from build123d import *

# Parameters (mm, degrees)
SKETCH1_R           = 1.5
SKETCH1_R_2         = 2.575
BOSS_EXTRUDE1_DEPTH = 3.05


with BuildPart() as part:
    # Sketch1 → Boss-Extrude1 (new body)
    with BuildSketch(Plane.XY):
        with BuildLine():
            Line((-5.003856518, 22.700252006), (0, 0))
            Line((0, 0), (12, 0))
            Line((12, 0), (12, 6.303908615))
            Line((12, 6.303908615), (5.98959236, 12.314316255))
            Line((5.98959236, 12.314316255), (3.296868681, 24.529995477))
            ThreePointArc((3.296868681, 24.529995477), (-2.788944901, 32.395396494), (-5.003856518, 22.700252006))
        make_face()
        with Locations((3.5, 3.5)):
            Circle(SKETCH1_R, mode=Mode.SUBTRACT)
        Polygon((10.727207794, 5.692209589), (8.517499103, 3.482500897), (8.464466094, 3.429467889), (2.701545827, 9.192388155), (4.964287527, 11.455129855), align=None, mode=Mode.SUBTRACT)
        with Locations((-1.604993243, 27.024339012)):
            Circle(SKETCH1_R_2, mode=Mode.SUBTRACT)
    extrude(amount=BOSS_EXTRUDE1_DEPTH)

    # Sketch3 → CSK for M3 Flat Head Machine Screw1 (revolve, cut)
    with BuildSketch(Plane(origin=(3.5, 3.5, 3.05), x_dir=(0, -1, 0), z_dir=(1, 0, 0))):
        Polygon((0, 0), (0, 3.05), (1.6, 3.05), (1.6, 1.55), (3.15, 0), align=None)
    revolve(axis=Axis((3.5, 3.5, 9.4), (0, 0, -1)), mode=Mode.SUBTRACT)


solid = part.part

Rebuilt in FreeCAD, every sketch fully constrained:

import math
import FreeCAD as App
import Part
import Sketcher
Q = App.Units.Quantity

doc = App.newDocument("Part")
body = doc.addObject("PartDesign::Body", "Body")

# Sketch on XY plane
sketch1 = doc.addObject("Sketcher::SketchObject", "Sketch")
body.addObject(sketch1)
sketch1.AttachmentSupport = (doc.XY_Plane, [""])
sketch1.MapMode = "FlatFace"
sketch1.addGeometry(Part.LineSegment(App.Vector(-5, 22.7, 0), App.Vector(0, 0, 0)), False)
sketch1.addGeometry(Part.LineSegment(App.Vector(0, 0, 0), App.Vector(12, 0, 0)), False)
sketch1.addGeometry(Part.LineSegment(App.Vector(12, 0, 0), App.Vector(12, 6.3, 0)), False)
sketch1.addGeometry(Part.LineSegment(App.Vector(12, 6.3, 0), App.Vector(5.99, 12.31, 0)), False)
sketch1.addGeometry(Part.LineSegment(App.Vector(5.99, 12.31, 0), App.Vector(3.3, 24.53, 0)), False)
sketch1.addGeometry(Part.ArcOfCircle(Part.Circle(App.Vector(-1.6, 27.02, 0), App.Vector(0, 0, 1), 5.5), math.radians(-27), math.radians(232)), False)
sketch1.addGeometry(Part.Circle(App.Vector(3.5, 3.5, 0), App.Vector(0, 0, 1), 1.5), False)
sketch1.addGeometry(Part.LineSegment(App.Vector(4.96, 11.46, 0), App.Vector(10.73, 5.69, 0)), False)
sketch1.addGeometry(Part.LineSegment(App.Vector(10.73, 5.69, 0), App.Vector(8.52, 3.48, 0)), False)
sketch1.addGeometry(Part.LineSegment(App.Vector(8.52, 3.48, 0), App.Vector(8.46, 3.43, 0)), False)
sketch1.addGeometry(Part.LineSegment(App.Vector(8.46, 3.43, 0), App.Vector(2.7, 9.19, 0)), False)
sketch1.addGeometry(Part.LineSegment(App.Vector(2.7, 9.19, 0), App.Vector(4.96, 11.46, 0)), False)
sketch1.addGeometry(Part.Circle(App.Vector(-1.6, 27.02, 0), App.Vector(0, 0, 1), 2.58), False)
sketch1.addConstraint(Sketcher.Constraint("Coincident", 0, 2, 1, 1))
sketch1.addConstraint(Sketcher.Constraint("Coincident", 1, 2, 2, 1))
sketch1.addConstraint(Sketcher.Constraint("Coincident", 2, 2, 3, 1))
sketch1.addConstraint(Sketcher.Constraint("Coincident", 3, 2, 4, 1))
sketch1.addConstraint(Sketcher.Constraint("Coincident", 4, 2, 5, 1))
sketch1.addConstraint(Sketcher.Constraint("Coincident", 5, 2, 0, 1))
sketch1.addConstraint(Sketcher.Constraint("Coincident", 7, 2, 8, 1))
sketch1.addConstraint(Sketcher.Constraint("Coincident", 8, 2, 9, 1))
sketch1.addConstraint(Sketcher.Constraint("Coincident", 9, 2, 10, 1))
sketch1.addConstraint(Sketcher.Constraint("Coincident", 10, 2, 11, 1))
sketch1.addConstraint(Sketcher.Constraint("Coincident", 11, 2, 7, 1))
sketch1.addConstraint(Sketcher.Constraint("Horizontal", 1))
sketch1.addConstraint(Sketcher.Constraint("Vertical", 2))
sketch1.addConstraint(Sketcher.Constraint("Coincident", 0, 2, -1, 1))
sketch1.addConstraint(Sketcher.Constraint("Coincident", 12, 3, 5, 3))
sketch1.addConstraint(Sketcher.Constraint("Parallel", 0, 4))
sketch1.addConstraint(Sketcher.Constraint("Parallel", 3, 7))
sketch1.addConstraint(Sketcher.Constraint("Perpendicular", 7, 8))
sketch1.addConstraint(Sketcher.Constraint("Parallel", 8, 9))
sketch1.addConstraint(Sketcher.Constraint("Perpendicular", 9, 10))
sketch1.addConstraint(Sketcher.Constraint("Perpendicular", 10, 11))
sketch1.addConstraint(Sketcher.Constraint("Diameter", 6, 3.0))
sketch1.addConstraint(Sketcher.Constraint("Radius", 5, 5.5))
sketch1.addConstraint(Sketcher.Constraint("Diameter", 12, 5.15))
sketch1.addConstraint(Sketcher.Constraint("DistanceX", 1, 1, 1, 2, 12.0))
sketch1.addConstraint(Sketcher.Constraint("Angle", 3, Q("135 deg")))
sketch1.addConstraint(Sketcher.Constraint("Distance", 3, 8.5))
sketch1.addConstraint(Sketcher.Constraint("Distance", 11, 3.2))
sketch1.addConstraint(Sketcher.Constraint("DistanceX", -1, 1, 6, 3, 3.5))
sketch1.addConstraint(Sketcher.Constraint("DistanceY", -1, 1, 6, 3, 3.5))
sketch1.addConstraint(Sketcher.Constraint("Distance", 7, 8.15))
sketch1.addConstraint(Sketcher.Constraint("Distance", 8, 3.125))
sketch1.addConstraint(Sketcher.Constraint("DistanceY", 2, 1, 2, 2, 6.303909))
sketch1.addConstraint(Sketcher.Constraint("DistanceX", -1, 1, 8, 2, 8.517499))
sketch1.addConstraint(Sketcher.Constraint("DistanceY", -1, 1, 8, 2, 3.482501))
sketch1.addConstraint(Sketcher.Constraint("Distance", 4, 12.50894))
sketch1.addConstraint(Sketcher.Constraint("DistanceY", -1, 1, 5, 3, 27.024339))
sketch1.addConstraint(Sketcher.Constraint("DistanceX", -1, 1, 4, 2, 3.296869))
pad1 = doc.addObject("PartDesign::Pad", "Pad")
body.addObject(pad1)
pad1.Profile = sketch1
pad1.Length = 3.05

# Sketch on YZ plane
sketch2 = doc.addObject("Sketcher::SketchObject", "Sketch001")
body.addObject(sketch2)
sketch2.AttachmentSupport = (doc.YZ_Plane, [""])
sketch2.MapMode = "FlatFace"
sketch2.AttachmentOffset = App.Placement(App.Vector(0, 0, 3.5), App.Rotation())
sketch2.addGeometry(Part.LineSegment(App.Vector(3.5, 0, 0), App.Vector(3.5, 3, 0)), False)
sketch2.addGeometry(Part.LineSegment(App.Vector(3.5, 3, 0), App.Vector(0.3, 3, 0)), False)
sketch2.addGeometry(Part.LineSegment(App.Vector(0.3, 3, 0), App.Vector(1.9, 1.5, 0)), False)
sketch2.addGeometry(Part.LineSegment(App.Vector(1.9, 1.5, 0), App.Vector(1.9, 0, 0)), False)
sketch2.addGeometry(Part.LineSegment(App.Vector(1.9, 0, 0), App.Vector(3.5, 0, 0)), False)
sketch2.addGeometry(Part.LineSegment(App.Vector(3.5, 3, 0), App.Vector(3.5, 0, 0)), True)  # axis
sketch2.addConstraint(Sketcher.Constraint("Coincident", 0, 2, 1, 1))
sketch2.addConstraint(Sketcher.Constraint("Coincident", 1, 2, 2, 1))
sketch2.addConstraint(Sketcher.Constraint("Coincident", 2, 2, 3, 1))
sketch2.addConstraint(Sketcher.Constraint("Coincident", 3, 2, 4, 1))
sketch2.addConstraint(Sketcher.Constraint("Coincident", 4, 2, 0, 1))
sketch2.addConstraint(Sketcher.Constraint("Vertical", 0))
sketch2.addConstraint(Sketcher.Constraint("Horizontal", 1))
sketch2.addConstraint(Sketcher.Constraint("Vertical", 3))
sketch2.addConstraint(Sketcher.Constraint("Horizontal", 4))
sketch2.addConstraint(Sketcher.Constraint("Vertical", 5))
sketch2.addConstraint(Sketcher.Constraint("Coincident", 5, 1, 0, 2))
sketch2.addConstraint(Sketcher.Constraint("PointOnObject", 3, 2, -1))
sketch2.addConstraint(Sketcher.Constraint("PointOnObject", 5, 2, -1))
sketch2.addConstraint(Sketcher.Constraint("Angle", 2, Q("-45 deg")))
sketch2.addConstraint(Sketcher.Constraint("DistanceX", 4, 1, 4, 2, 1.6))
sketch2.addConstraint(Sketcher.Constraint("DistanceY", 3, 2, 3, 1, 1.5))
sketch2.addConstraint(Sketcher.Constraint("DistanceX", 1, 2, 1, 1, 3.15))
sketch2.addConstraint(Sketcher.Constraint("DistanceX", -1, 1, 0, 2, 3.5))
groove = doc.addObject("PartDesign::Groove", "Groove")
body.addObject(groove)
groove.Profile = sketch2
groove.ReferenceAxis = (sketch2, ["Axis0"])
groove.Angle = 360

doc.recompute()
